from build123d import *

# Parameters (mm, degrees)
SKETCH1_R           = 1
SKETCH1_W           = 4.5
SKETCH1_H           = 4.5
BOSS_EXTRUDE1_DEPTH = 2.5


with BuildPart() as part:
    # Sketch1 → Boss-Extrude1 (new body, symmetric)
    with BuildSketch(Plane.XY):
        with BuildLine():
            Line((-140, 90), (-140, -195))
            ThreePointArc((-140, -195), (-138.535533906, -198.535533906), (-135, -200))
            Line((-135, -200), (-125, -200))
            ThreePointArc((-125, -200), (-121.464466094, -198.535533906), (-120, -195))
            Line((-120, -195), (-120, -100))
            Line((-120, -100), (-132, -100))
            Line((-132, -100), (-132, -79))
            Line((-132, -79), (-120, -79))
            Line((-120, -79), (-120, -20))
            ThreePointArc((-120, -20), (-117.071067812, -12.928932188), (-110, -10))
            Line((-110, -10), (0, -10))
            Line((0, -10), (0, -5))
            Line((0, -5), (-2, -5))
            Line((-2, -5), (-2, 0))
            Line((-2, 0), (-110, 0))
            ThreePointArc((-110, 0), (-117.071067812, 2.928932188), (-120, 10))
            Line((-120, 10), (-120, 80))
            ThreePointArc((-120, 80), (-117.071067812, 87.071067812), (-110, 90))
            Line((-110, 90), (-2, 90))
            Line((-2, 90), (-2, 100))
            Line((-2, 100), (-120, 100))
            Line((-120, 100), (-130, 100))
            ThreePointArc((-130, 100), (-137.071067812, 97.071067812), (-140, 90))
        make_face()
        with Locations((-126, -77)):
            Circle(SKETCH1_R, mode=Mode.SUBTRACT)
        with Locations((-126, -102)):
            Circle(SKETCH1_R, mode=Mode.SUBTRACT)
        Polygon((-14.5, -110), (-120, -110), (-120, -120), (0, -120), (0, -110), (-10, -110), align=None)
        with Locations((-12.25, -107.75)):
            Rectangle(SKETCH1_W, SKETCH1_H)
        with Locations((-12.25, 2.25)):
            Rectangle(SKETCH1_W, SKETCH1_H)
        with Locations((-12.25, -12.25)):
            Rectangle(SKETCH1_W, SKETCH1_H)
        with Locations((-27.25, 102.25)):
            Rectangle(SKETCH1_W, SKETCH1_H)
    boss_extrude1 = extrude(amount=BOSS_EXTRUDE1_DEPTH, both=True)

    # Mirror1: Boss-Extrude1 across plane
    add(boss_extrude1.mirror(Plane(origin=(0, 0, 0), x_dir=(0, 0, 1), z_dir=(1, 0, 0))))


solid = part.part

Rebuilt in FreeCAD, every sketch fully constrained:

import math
import FreeCAD as App
import Part
import Sketcher
Q = App.Units.Quantity

doc = App.newDocument("Part")
body = doc.addObject("PartDesign::Body", "Body")

# Sketch on XY plane
sketch1 = body.newObject("Sketcher::SketchObject", "Sketch")
sketch1.AttachmentSupport = (doc.getObject("XY_Plane"), [""])
sketch1.MapMode = "FlatFace"
sketch1.addGeometry(Part.LineSegment(App.Vector(-140, 90, 0), App.Vector(-140, -195, 0)), False)
sketch1.addGeometry(Part.ArcOfCircle(Part.Circle(App.Vector(-135, -195, 0), App.Vector(0, 0, 1), 5), math.radians(180), math.radians(270)), False)
sketch1.addGeometry(Part.LineSegment(App.Vector(-135, -200, 0), App.Vector(-125, -200, 0)), False)
sketch1.addGeometry(Part.ArcOfCircle(Part.Circle(App.Vector(-125, -195, 0), App.Vector(0, 0, 1), 5), math.radians(-90), math.radians(0)), False)
sketch1.addGeometry(Part.LineSegment(App.Vector(-120, -195, 0), App.Vector(-120, -120, 0)), False)
sketch1.addGeometry(Part.LineSegment(App.Vector(-120, -120, 0), App.Vector(0, -120, 0)), False)
sketch1.addGeometry(Part.LineSegment(App.Vector(0, -120, 0), App.Vector(0, -110, 0)), False)
sketch1.addGeometry(Part.LineSegment(App.Vector(0, -110, 0), App.Vector(-10, -110, 0)), False)
sketch1.addGeometry(Part.LineSegment(App.Vector(-10, -110, 0), App.Vector(-10, -105.5, 0)), False)
sketch1.addGeometry(Part.LineSegment(App.Vector(-10, -105.5, 0), App.Vector(-14.5, -105.5, 0)), False)
sketch1.addGeometry(Part.LineSegment(App.Vector(-14.5, -105.5, 0), App.Vector(-14.5, -110, 0)), False)
sketch1.addGeometry(Part.LineSegment(App.Vector(-14.5, -110, 0), App.Vector(-120, -110, 0)), False)
sketch1.addGeometry(Part.LineSegment(App.Vector(-120, -110, 0), App.Vector(-120, -100, 0)), False)
sketch1.addGeometry(Part.LineSegment(App.Vector(-120, -100, 0), App.Vector(-132, -100, 0)), False)
sketch1.addGeometry(Part.LineSegment(App.Vector(-132, -100, 0), App.Vector(-132, -79, 0)), False)
sketch1.addGeometry(Part.LineSegment(App.Vector(-132, -79, 0), App.Vector(-120, -79, 0)), False)
sketch1.addGeometry(Part.LineSegment(App.Vector(-120, -79, 0), App.Vector(-120, -20, 0)), False)
sketch1.addGeometry(Part.ArcOfCircle(Part.Circle(App.Vector(-110, -20, 0), App.Vector(0, 0, 1), 10), math.radians(90), math.radians(180)), False)
sketch1.addGeometry(Part.LineSegment(App.Vector(-110, -10, 0), App.Vector(-14.5, -10, 0)), False)
sketch1.addGeometry(Part.LineSegment(App.Vector(-14.5, -10, 0), App.Vector(-14.5, -14.5, 0)), False)
sketch1.addGeometry(Part.LineSegment(App.Vector(-14.5, -14.5, 0), App.Vector(-10, -14.5, 0)), False)
sketch1.addGeometry(Part.LineSegment(App.Vector(-10, -14.5, 0), App.Vector(-10, -10, 0)), False)
sketch1.addGeometry(Part.LineSegment(App.Vector(-10, -10, 0), App.Vector(0, -10, 0)), False)
sketch1.addGeometry(Part.LineSegment(App.Vector(0, -10, 0), App.Vector(0, -5, 0)), False)
sketch1.addGeometry(Part.LineSegment(App.Vector(0, -5, 0), App.Vector(-2, -5, 0)), False)
sketch1.addGeometry(Part.LineSegment(App.Vector(-2, -5, 0), App.Vector(-2, 0, 0)), False)
sketch1.addGeometry(Part.LineSegment(App.Vector(-2, 0, 0), App.Vector(-10, 0, 0)), False)
sketch1.addGeometry(Part.LineSegment(App.Vector(-10, 0, 0), App.Vector(-10, 4.5, 0)), False)
sketch1.addGeometry(Part.LineSegment(App.Vector(-10, 4.5, 0), App.Vector(-14.5, 4.5, 0)), False)
sketch1.addGeometry(Part.LineSegment(App.Vector(-14.5, 4.5, 0), App.Vector(-14.5, 0, 0)), False)
sketch1.addGeometry(Part.LineSegment(App.Vector(-14.5, 0, 0), App.Vector(-110, 0, 0)), False)
sketch1.addGeometry(Part.ArcOfCircle(Part.Circle(App.Vector(-110, 10, 0), App.Vector(0, 0, 1), 10), math.radians(180), math.radians(270)), False)
sketch1.addGeometry(Part.LineSegment(App.Vector(-120, 10, 0), App.Vector(-120, 80, 0)), False)
sketch1.addGeometry(Part.ArcOfCircle(Part.Circle(App.Vector(-110, 80, 0), App.Vector(0, 0, 1), 10), math.radians(90), math.radians(180)), False)
sketch1.addGeometry(Part.LineSegment(App.Vector(-110, 90, 0), App.Vector(-2, 90, 0)), False)
sketch1.addGeometry(Part.LineSegment(App.Vector(-2, 90, 0), App.Vector(-2, 100, 0)), False)
sketch1.addGeometry(Part.LineSegment(App.Vector(-2, 100, 0), App.Vector(-25, 100, 0)), False)
sketch1.addGeometry(Part.LineSegment(App.Vector(-25, 100, 0), App.Vector(-25, 104.5, 0)), False)
sketch1.addGeometry(Part.LineSegment(App.Vector(-25, 104.5, 0), App.Vector(-29.5, 104.5, 0)), False)
sketch1.addGeometry(Part.LineSegment(App.Vector(-29.5, 104.5, 0), App.Vector(-29.5, 100, 0)), False)
sketch1.addGeometry(Part.LineSegment(App.Vector(-29.5, 100, 0), App.Vector(-130, 100, 0)), False)
sketch1.addGeometry(Part.ArcOfCircle(Part.Circle(App.Vector(-130, 90, 0), App.Vector(0, 0, 1), 10), math.radians(90), math.radians(180)), False)
sketch1.addGeometry(Part.Circle(App.Vector(-126, -102, 0), App.Vector(0, 0, 1), 1), False)
sketch1.addGeometry(Part.Circle(App.Vector(-126, -77, 0), App.Vector(0, 0, 1), 1), False)
sketch1.addConstraint(Sketcher.Constraint("Tangent", 0, 2, 1, 1))
sketch1.addConstraint(Sketcher.Constraint("Tangent", 1, 2, 2, 1))
sketch1.addConstraint(Sketcher.Constraint("Tangent", 2, 2, 3, 1))
sketch1.addConstraint(Sketcher.Constraint("Tangent", 3, 2, 4, 1))
sketch1.addConstraint(Sketcher.Constraint("Coincident", 4, 2, 5, 1))
sketch1.addConstraint(Sketcher.Constraint("Coincident", 5, 2, 6, 1))
sketch1.addConstraint(Sketcher.Constraint("Coincident", 6, 2, 7, 1))
sketch1.addConstraint(Sketcher.Constraint("Coincident", 7, 2, 8, 1))
sketch1.addConstraint(Sketcher.Constraint("Coincident", 8, 2, 9, 1))
sketch1.addConstraint(Sketcher.Constraint("Coincident", 9, 2, 10, 1))
sketch1.addConstraint(Sketcher.Constraint("Coincident", 10, 2, 11, 1))
sketch1.addConstraint(Sketcher.Constraint("Coincident", 11, 2, 12, 1))
sketch1.addConstraint(Sketcher.Constraint("Coincident", 12, 2, 13, 1))
sketch1.addConstraint(Sketcher.Constraint("Coincident", 13, 2, 14, 1))
sketch1.addConstraint(Sketcher.Constraint("Coincident", 14, 2, 15, 1))
sketch1.addConstraint(Sketcher.Constraint("Coincident", 15, 2, 16, 1))
sketch1.addConstraint(Sketcher.Constraint("Tangent", 16, 2, 17, 2))
sketch1.addConstraint(Sketcher.Constraint("Tangent", 17, 1, 18, 1))
sketch1.addConstraint(Sketcher.Constraint("Coincident", 18, 2, 19, 1))
sketch1.addConstraint(Sketcher.Constraint("Coincident", 19, 2, 20, 1))
sketch1.addConstraint(Sketcher.Constraint("Coincident", 20, 2, 21, 1))
sketch1.addConstraint(Sketcher.Constraint("Coincident", 21, 2, 22, 1))
sketch1.addConstraint(Sketcher.Constraint("Coincident", 22, 2, 23, 1))
sketch1.addConstraint(Sketcher.Constraint("Coincident", 23, 2, 24, 1))
sketch1.addConstraint(Sketcher.Constraint("Coincident", 24, 2, 25, 1))
sketch1.addConstraint(Sketcher.Constraint("Coincident", 25, 2, 26, 1))
sketch1.addConstraint(Sketcher.Constraint("Coincident", 26, 2, 27, 1))
sketch1.addConstraint(Sketcher.Constraint("Coincident", 27, 2, 28, 1))
sketch1.addConstraint(Sketcher.Constraint("Coincident", 28, 2, 29, 1))
sketch1.addConstraint(Sketcher.Constraint("Coincident", 29, 2, 30, 1))
sketch1.addConstraint(Sketcher.Constraint("Tangent", 30, 2, 31, 2))
sketch1.addConstraint(Sketcher.Constraint("Tangent", 31, 1, 32, 1))
sketch1.addConstraint(Sketcher.Constraint("Tangent", 32, 2, 33, 2))
sketch1.addConstraint(Sketcher.Constraint("Tangent", 33, 1, 34, 1))
sketch1.addConstraint(Sketcher.Constraint("Coincident", 34, 2, 35, 1))
sketch1.addConstraint(Sketcher.Constraint("Coincident", 35, 2, 36, 1))
sketch1.addConstraint(Sketcher.Constraint("Coincident", 36, 2, 37, 1))
sketch1.addConstraint(Sketcher.Constraint("Coincident", 37, 2, 38, 1))
sketch1.addConstraint(Sketcher.Constraint("Coincident", 38, 2, 39, 1))
sketch1.addConstraint(Sketcher.Constraint("Coincident", 39, 2, 40, 1))
sketch1.addConstraint(Sketcher.Constraint("Tangent", 40, 2, 41, 1))
sketch1.addConstraint(Sketcher.Constraint("Tangent", 41, 2, 0, 1))
sketch1.addConstraint(Sketcher.Constraint("Vertical", 0))
sketch1.addConstraint(Sketcher.Constraint("Horizontal", 2))
sketch1.addConstraint(Sketcher.Constraint("Vertical", 4))
sketch1.addConstraint(Sketcher.Constraint("Horizontal", 5))
sketch1.addConstraint(Sketcher.Constraint("Vertical", 6))
sketch1.addConstraint(Sketcher.Constraint("Horizontal", 7))
sketch1.addConstraint(Sketcher.Constraint("Vertical", 8))
sketch1.addConstraint(Sketcher.Constraint("Horizontal", 9))
sketch1.addConstraint(Sketcher.Constraint("Vertical", 10))
sketch1.addConstraint(Sketcher.Constraint("Horizontal", 11))
sketch1.addConstraint(Sketcher.Constraint("Vertical", 12))
sketch1.addConstraint(Sketcher.Constraint("Horizontal", 13))
sketch1.addConstraint(Sketcher.Constraint("Vertical", 14))
sketch1.addConstraint(Sketcher.Constraint("Horizontal", 15))
sketch1.addConstraint(Sketcher.Constraint("Vertical", 16))
sketch1.addConstraint(Sketcher.Constraint("Horizontal", 18))
sketch1.addConstraint(Sketcher.Constraint("Vertical", 19))
sketch1.addConstraint(Sketcher.Constraint("Horizontal", 20))
sketch1.addConstraint(Sketcher.Constraint("Vertical", 21))
sketch1.addConstraint(Sketcher.Constraint("Horizontal", 22))
sketch1.addConstraint(Sketcher.Constraint("Vertical", 23))
sketch1.addConstraint(Sketcher.Constraint("Horizontal", 24))
sketch1.addConstraint(Sketcher.Constraint("Vertical", 25))
sketch1.addConstraint(Sketcher.Constraint("Horizontal", 26))
sketch1.addConstraint(Sketcher.Constraint("Vertical", 27))
sketch1.addConstraint(Sketcher.Constraint("Horizontal", 28))
sketch1.addConstraint(Sketcher.Constraint("Vertical", 29))
sketch1.addConstraint(Sketcher.Constraint("Horizontal", 30))
sketch1.addConstraint(Sketcher.Constraint("Vertical", 32))
sketch1.addConstraint(Sketcher.Constraint("Horizontal", 34))
sketch1.addConstraint(Sketcher.Constraint("Vertical", 35))
sketch1.addConstraint(Sketcher.Constraint("Horizontal", 36))
sketch1.addConstraint(Sketcher.Constraint("Vertical", 37))
sketch1.addConstraint(Sketcher.Constraint("Horizontal", 38))
sketch1.addConstraint(Sketcher.Constraint("Vertical", 39))
sketch1.addConstraint(Sketcher.Constraint("Horizontal", 40))
sketch1.addConstraint(Sketcher.Constraint("Equal", 1, 3))
sketch1.addConstraint(Sketcher.Constraint("Equal", 17, 31))
sketch1.addConstraint(Sketcher.Constraint("Equal", 31, 33))
sketch1.addConstraint(Sketcher.Constraint("Equal", 33, 41))
sketch1.addConstraint(Sketcher.Constraint("Equal", 42, 43))
sketch1.addConstraint(Sketcher.Constraint("PointOnObject", 5, 2, -2))
sketch1.addConstraint(Sketcher.Constraint("PointOnObject", 22, 2, -2))
sketch1.addConstraint(Sketcher.Constraint("PointOnObject", 25, 2, -1))
sketch1.addConstraint(Sketcher.Constraint("PointOnObject", 29, 2, -1))
sketch1.addConstraint(Sketcher.Constraint("Horizontal", 7, 2, 10, 2))
sketch1.addConstraint(Sketcher.Constraint("Horizontal", 18, 2, 21, 2))
sketch1.addConstraint(Sketcher.Constraint("Horizontal", 41, 3, 33, 1))
sketch1.addConstraint(Sketcher.Constraint("Horizontal", 36, 2, 39, 2))
sketch1.addConstraint(Sketcher.Constraint("Vertical", 17, 3, 31, 3))
sketch1.addConstraint(Sketcher.Constraint("Vertical", 42, 3, 43, 3))
sketch1.addConstraint(Sketcher.Constraint("Vertical", 4, 2, 11, 2))
sketch1.addConstraint(Sketcher.Constraint("Vertical", 12, 2, 15, 2))
sketch1.addConstraint(Sketcher.Constraint("Vertical", 10, 2, 18, 2))
sketch1.addConstraint(Sketcher.Constraint("Vertical", 8, 2, 20, 2))
sketch1.addConstraint(Sketcher.Constraint("Vertical", 21, 2, 26, 2))
sketch1.addConstraint(Sketcher.Constraint("Vertical", 19, 2, 28, 2))
sketch1.addConstraint(Sketcher.Constraint("Vertical", 25, 2, 34, 2))
sketch1.addConstraint(Sketcher.Constraint("Equal", 2, 7))
sketch1.addConstraint(Sketcher.Constraint("Equal", 28, 38))
sketch1.addConstraint(Sketcher.Constraint("Equal", 22, 6))
sketch1.addConstraint(Sketcher.Constraint("Equal", 38, 8))
sketch1.addConstraint(Sketcher.Constraint("Equal", 6, 12))
sketch1.addConstraint(Sketcher.Constraint("Equal", 10, 19))
sketch1.addConstraint(Sketcher.Constraint("Equal", 23, 25))
sketch1.addConstraint(Sketcher.Constraint("Equal", 21, 27))
sketch1.addConstraint(Sketcher.Constraint("Equal", 12, 35))
sketch1.addConstraint(Sketcher.Constraint("Equal", 29, 37))
sketch1.addConstraint(Sketcher.Constraint("Diameter", 42, Q("2 mm")))
sketch1.addConstraint(Sketcher.Constraint("Radius", 1, Q("5 mm")))
sketch1.addConstraint(Sketcher.Constraint("Radius", 17, Q("10 mm")))
sketch1.addConstraint(Sketcher.Constraint("DistanceX", 5, 1, 5, 2, Q("120 mm")))
sketch1.addConstraint(Sketcher.Constraint("DistanceX", 13, 2, 13, 1, Q("12 mm")))
sketch1.addConstraint(Sketcher.Constraint("DistanceX", 24, 2, 24, 1, Q("2 mm")))
sketch1.addConstraint(Sketcher.Constraint("DistanceX", 36, 2, 36, 1, Q("23 mm")))
sketch1.addConstraint(Sketcher.Constraint("DistanceY", 0, 2, 0, 1, Q("285 mm")))
sketch1.addConstraint(Sketcher.Constraint("DistanceY", 4, 1, 4, 2, Q("75 mm")))
sketch1.addConstraint(Sketcher.Constraint("DistanceY", 14, 1, 14, 2, Q("21 mm")))
sketch1.addConstraint(Sketcher.Constraint("DistanceY", 16, 1, 16, 2, Q("59 mm")))
sketch1.addConstraint(Sketcher.Constraint("DistanceY", 23, 1, 23, 2, Q("5 mm")))
sketch1.addConstraint(Sketcher.Constraint("DistanceX", 9, 2, 9, 1, Q("4.5 mm")))
sketch1.addConstraint(Sketcher.Constraint("DistanceX", 42, 3, -1, 1, Q("126 mm")))
sketch1.addConstraint(Sketcher.Constraint("DistanceY", 42, 3, -1, 1, Q("102 mm")))
sketch1.addConstraint(Sketcher.Constraint("DistanceY", 43, 3, -1, 1, Q("77 mm")))
pad1 = body.newObject("PartDesign::Pad", "Pad")
pad1.Profile = sketch1
pad1.Length = 5
pad1.Midplane = True
doc.recompute()

mirrored = body.newObject("PartDesign::Mirrored", "Mirrored")
mirrored.Originals = [pad1]
mirrored.MirrorPlane = (doc.getObject("YZ_Plane"), [""])
body.Tip = mirrored

doc.recompute()
